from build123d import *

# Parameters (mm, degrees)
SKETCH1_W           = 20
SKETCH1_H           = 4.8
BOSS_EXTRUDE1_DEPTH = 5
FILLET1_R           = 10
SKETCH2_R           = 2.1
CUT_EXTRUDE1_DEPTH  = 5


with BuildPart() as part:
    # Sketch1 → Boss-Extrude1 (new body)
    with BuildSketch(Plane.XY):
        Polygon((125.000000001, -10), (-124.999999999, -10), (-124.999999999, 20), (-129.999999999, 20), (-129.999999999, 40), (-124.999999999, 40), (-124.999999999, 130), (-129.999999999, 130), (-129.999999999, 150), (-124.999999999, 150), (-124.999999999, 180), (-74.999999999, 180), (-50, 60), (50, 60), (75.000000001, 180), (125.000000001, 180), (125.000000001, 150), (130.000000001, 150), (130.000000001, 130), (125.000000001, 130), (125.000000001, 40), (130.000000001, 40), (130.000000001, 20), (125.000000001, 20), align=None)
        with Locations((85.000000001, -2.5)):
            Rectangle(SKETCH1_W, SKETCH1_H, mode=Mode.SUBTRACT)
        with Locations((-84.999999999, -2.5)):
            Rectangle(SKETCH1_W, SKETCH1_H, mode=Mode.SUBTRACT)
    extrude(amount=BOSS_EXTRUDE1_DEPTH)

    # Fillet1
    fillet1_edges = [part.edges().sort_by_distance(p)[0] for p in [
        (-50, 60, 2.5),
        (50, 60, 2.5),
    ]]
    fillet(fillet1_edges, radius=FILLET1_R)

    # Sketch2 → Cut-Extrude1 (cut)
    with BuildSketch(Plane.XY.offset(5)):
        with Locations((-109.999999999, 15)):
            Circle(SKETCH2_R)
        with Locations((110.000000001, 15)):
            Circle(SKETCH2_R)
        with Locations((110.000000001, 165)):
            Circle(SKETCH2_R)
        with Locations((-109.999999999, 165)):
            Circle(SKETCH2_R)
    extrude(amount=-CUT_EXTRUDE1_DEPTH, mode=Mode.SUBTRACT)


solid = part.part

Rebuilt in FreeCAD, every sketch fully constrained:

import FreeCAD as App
import Part
import Sketcher

V = App.Vector


def edges_at(feature, points):
    """Names of the edges that pass closest to the given points."""
    edges = feature.Shape.Edges
    near = lambda p: min(range(len(edges)), key=lambda i: edges[i].distToShape(Part.Vertex(*p))[0])
    return sorted({f"Edge{near(p) + 1}" for p in points})


def add_polygon(sketch, points):
    """Adds a closed chain of lines whose ends are joined by coincident constraints."""
    first, n = sketch.GeometryCount, len(points)
    for a, b in zip(points, points[1:] + points[:1]):
        sketch.addGeometry(Part.LineSegment(App.Vector(*a, 0), App.Vector(*b, 0)), False)
    for i in range(n):
        sketch.addConstraint(Sketcher.Constraint("Coincident", first + i, 2, first + (i + 1) % n, 1))

doc = App.newDocument("Part")
body = doc.addObject("PartDesign::Body", "Body")

sketch1 = body.newObject("Sketcher::SketchObject", "Sketch")
sketch1.AttachmentSupport = (doc.getObject("XY_Plane"), [""])
sketch1.MapMode = "FlatFace"
add_polygon(sketch1, [(-125, -10), (125, -10), (125, 20), (130, 20), (130, 40), (125, 40), (125, 130), (130, 130), (130, 150), (125, 150), (125, 180), (75, 180), (50, 60), (-50, 60), (-75, 180), (-125, 180), (-125, 150), (-130, 150), (-130, 130), (-125, 130), (-125, 40), (-130, 40), (-130, 20), (-125, 20)])
add_polygon(sketch1, [(75, -4.9), (75, -0.1), (95, -0.1), (95, -4.9)])
add_polygon(sketch1, [(-95, -4.9), (-95, -0.1), (-75, -0.1), (-75, -4.9)])
sketch1.addConstraint([
    Sketcher.Constraint("Horizontal", 0),
    Sketcher.Constraint("Vertical", 1),
    Sketcher.Constraint("Horizontal", 2),
    Sketcher.Constraint("Vertical", 3),
    Sketcher.Constraint("Horizontal", 4),
    Sketcher.Constraint("Vertical", 5),
    Sketcher.Constraint("Horizontal", 6),
    Sketcher.Constraint("Vertical", 7),
    Sketcher.Constraint("Horizontal", 8),
    Sketcher.Constraint("Vertical", 9),
    Sketcher.Constraint("Horizontal", 10),
    Sketcher.Constraint("Horizontal", 12),
    Sketcher.Constraint("Horizontal", 14),
    Sketcher.Constraint("Vertical", 15),
    Sketcher.Constraint("Horizontal", 16),
    Sketcher.Constraint("Vertical", 17),
    Sketcher.Constraint("Horizontal", 18),
    Sketcher.Constraint("Vertical", 19),
    Sketcher.Constraint("Horizontal", 20),
    Sketcher.Constraint("Vertical", 21),
    Sketcher.Constraint("Horizontal", 22),
    Sketcher.Constraint("Vertical", 23),
    Sketcher.Constraint("Vertical", 24),
    Sketcher.Constraint("Horizontal", 25),
    Sketcher.Constraint("Vertical", 26),
    Sketcher.Constraint("Horizontal", 27),
    Sketcher.Constraint("Vertical", 28),
    Sketcher.Constraint("Horizontal", 29),
    Sketcher.Constraint("Vertical", 30),
    Sketcher.Constraint("Horizontal", 31),
    Sketcher.Constraint("Symmetric", 10, 2, 13, 2, -2),
    Sketcher.Constraint("Symmetric", 8, 2, 15, 2, -2),
    Sketcher.Constraint("Symmetric", 6, 2, 17, 2, -2),
    Sketcher.Constraint("Symmetric", 4, 2, 19, 2, -2),
    Sketcher.Constraint("Symmetric", 2, 2, 21, 2, -2),
    Sketcher.Constraint("Symmetric", 25, 2, 28, 2, -2),
    Sketcher.Constraint("Symmetric", 27, 2, 30, 2, -2),
    Sketcher.Constraint("Vertical", 1, 2, 4, 2),
    Sketcher.Constraint("Vertical", 3, 2, 6, 2),
    Sketcher.Constraint("Vertical", 5, 2, 8, 2),
    Sketcher.Constraint("Vertical", 19, 2, 22, 2),
    Sketcher.Constraint("Vertical", 10, 2, 24, 2),
    Sketcher.Constraint("Equal", 31, 3),
    Sketcher.Constraint("Equal", 3, 7),
    Sketcher.Constraint("Equal", 1, 9),
    Sketcher.Constraint("Equal", 11, 13),
    Sketcher.Constraint("DistanceX", 0, 1, 0, 2, 250.0),
    Sketcher.Constraint("DistanceX", 2, 1, 2, 2, 5.0),
    Sketcher.Constraint("DistanceX", 10, 2, 10, 1, 50.0),
    Sketcher.Constraint("DistanceX", 12, 2, 12, 1, 100.0),
    Sketcher.Constraint("DistanceX", 25, 1, 25, 2, 20.0),
    Sketcher.Constraint("DistanceY", 1, 1, 1, 2, 30.0),
    Sketcher.Constraint("DistanceY", 5, 1, 5, 2, 90.0),
    Sketcher.Constraint("DistanceY", 24, 1, 24, 2, 4.8),
    Sketcher.Constraint("DistanceY", 0, 2, -1, 1, 10.0),
    Sketcher.Constraint("DistanceY", -1, 1, 11, 2, 60.0),
    Sketcher.Constraint("DistanceY", 24, 2, -1, 1, 0.1),
])
pad1 = body.newObject("PartDesign::Pad", "Pad")
pad1.Profile = sketch1
pad1.Length = 5
doc.recompute()

fillet = body.newObject("PartDesign::Fillet", "Fillet")
fillet.Base = (pad1, edges_at(pad1, [(-50, 60, 2.5), (50, 60, 2.5)]))
fillet.Radius = 10

sketch2 = body.newObject("Sketcher::SketchObject", "Sketch001")
sketch2.AttachmentSupport = (doc.getObject("XY_Plane"), [""])
sketch2.MapMode = "FlatFace"
sketch2.AttachmentOffset = App.Placement(V(0, 0, 5), App.Rotation())
sketch2.addGeometry([
    Part.Circle(V(-110, 15, 0), V(0, 0, 1), 2.1),
    Part.Circle(V(110, 15, 0), V(0, 0, 1), 2.1),
    Part.Circle(V(110, 165, 0), V(0, 0, 1), 2.1),
    Part.Circle(V(-110, 165, 0), V(0, 0, 1), 2.1),
], False)
sketch2.addConstraint([
    Sketcher.Constraint("Equal", 0, 1),
    Sketcher.Constraint("Equal", 1, 2),
    Sketcher.Constraint("Equal", 2, 3),
    Sketcher.Constraint("Symmetric", 0, 3, 1, 3, -2),
    Sketcher.Constraint("Symmetric", 2, 3, 3, 3, -2),
    Sketcher.Constraint("Vertical", 1, 3, 2, 3),
    Sketcher.Constraint("Diameter", 0, 4.2),
    Sketcher.Constraint("DistanceX", 0, 3, -1, 1, 110.0),
    Sketcher.Constraint("DistanceY", -1, 1, 0, 3, 15.0),
    Sketcher.Constraint("DistanceY", -1, 1, 2, 3, 165.0),
])
pocket1 = body.newObject("PartDesign::Pocket", "Pocket")
pocket1.Profile = sketch2
pocket1.Length = 5

doc.recompute()
